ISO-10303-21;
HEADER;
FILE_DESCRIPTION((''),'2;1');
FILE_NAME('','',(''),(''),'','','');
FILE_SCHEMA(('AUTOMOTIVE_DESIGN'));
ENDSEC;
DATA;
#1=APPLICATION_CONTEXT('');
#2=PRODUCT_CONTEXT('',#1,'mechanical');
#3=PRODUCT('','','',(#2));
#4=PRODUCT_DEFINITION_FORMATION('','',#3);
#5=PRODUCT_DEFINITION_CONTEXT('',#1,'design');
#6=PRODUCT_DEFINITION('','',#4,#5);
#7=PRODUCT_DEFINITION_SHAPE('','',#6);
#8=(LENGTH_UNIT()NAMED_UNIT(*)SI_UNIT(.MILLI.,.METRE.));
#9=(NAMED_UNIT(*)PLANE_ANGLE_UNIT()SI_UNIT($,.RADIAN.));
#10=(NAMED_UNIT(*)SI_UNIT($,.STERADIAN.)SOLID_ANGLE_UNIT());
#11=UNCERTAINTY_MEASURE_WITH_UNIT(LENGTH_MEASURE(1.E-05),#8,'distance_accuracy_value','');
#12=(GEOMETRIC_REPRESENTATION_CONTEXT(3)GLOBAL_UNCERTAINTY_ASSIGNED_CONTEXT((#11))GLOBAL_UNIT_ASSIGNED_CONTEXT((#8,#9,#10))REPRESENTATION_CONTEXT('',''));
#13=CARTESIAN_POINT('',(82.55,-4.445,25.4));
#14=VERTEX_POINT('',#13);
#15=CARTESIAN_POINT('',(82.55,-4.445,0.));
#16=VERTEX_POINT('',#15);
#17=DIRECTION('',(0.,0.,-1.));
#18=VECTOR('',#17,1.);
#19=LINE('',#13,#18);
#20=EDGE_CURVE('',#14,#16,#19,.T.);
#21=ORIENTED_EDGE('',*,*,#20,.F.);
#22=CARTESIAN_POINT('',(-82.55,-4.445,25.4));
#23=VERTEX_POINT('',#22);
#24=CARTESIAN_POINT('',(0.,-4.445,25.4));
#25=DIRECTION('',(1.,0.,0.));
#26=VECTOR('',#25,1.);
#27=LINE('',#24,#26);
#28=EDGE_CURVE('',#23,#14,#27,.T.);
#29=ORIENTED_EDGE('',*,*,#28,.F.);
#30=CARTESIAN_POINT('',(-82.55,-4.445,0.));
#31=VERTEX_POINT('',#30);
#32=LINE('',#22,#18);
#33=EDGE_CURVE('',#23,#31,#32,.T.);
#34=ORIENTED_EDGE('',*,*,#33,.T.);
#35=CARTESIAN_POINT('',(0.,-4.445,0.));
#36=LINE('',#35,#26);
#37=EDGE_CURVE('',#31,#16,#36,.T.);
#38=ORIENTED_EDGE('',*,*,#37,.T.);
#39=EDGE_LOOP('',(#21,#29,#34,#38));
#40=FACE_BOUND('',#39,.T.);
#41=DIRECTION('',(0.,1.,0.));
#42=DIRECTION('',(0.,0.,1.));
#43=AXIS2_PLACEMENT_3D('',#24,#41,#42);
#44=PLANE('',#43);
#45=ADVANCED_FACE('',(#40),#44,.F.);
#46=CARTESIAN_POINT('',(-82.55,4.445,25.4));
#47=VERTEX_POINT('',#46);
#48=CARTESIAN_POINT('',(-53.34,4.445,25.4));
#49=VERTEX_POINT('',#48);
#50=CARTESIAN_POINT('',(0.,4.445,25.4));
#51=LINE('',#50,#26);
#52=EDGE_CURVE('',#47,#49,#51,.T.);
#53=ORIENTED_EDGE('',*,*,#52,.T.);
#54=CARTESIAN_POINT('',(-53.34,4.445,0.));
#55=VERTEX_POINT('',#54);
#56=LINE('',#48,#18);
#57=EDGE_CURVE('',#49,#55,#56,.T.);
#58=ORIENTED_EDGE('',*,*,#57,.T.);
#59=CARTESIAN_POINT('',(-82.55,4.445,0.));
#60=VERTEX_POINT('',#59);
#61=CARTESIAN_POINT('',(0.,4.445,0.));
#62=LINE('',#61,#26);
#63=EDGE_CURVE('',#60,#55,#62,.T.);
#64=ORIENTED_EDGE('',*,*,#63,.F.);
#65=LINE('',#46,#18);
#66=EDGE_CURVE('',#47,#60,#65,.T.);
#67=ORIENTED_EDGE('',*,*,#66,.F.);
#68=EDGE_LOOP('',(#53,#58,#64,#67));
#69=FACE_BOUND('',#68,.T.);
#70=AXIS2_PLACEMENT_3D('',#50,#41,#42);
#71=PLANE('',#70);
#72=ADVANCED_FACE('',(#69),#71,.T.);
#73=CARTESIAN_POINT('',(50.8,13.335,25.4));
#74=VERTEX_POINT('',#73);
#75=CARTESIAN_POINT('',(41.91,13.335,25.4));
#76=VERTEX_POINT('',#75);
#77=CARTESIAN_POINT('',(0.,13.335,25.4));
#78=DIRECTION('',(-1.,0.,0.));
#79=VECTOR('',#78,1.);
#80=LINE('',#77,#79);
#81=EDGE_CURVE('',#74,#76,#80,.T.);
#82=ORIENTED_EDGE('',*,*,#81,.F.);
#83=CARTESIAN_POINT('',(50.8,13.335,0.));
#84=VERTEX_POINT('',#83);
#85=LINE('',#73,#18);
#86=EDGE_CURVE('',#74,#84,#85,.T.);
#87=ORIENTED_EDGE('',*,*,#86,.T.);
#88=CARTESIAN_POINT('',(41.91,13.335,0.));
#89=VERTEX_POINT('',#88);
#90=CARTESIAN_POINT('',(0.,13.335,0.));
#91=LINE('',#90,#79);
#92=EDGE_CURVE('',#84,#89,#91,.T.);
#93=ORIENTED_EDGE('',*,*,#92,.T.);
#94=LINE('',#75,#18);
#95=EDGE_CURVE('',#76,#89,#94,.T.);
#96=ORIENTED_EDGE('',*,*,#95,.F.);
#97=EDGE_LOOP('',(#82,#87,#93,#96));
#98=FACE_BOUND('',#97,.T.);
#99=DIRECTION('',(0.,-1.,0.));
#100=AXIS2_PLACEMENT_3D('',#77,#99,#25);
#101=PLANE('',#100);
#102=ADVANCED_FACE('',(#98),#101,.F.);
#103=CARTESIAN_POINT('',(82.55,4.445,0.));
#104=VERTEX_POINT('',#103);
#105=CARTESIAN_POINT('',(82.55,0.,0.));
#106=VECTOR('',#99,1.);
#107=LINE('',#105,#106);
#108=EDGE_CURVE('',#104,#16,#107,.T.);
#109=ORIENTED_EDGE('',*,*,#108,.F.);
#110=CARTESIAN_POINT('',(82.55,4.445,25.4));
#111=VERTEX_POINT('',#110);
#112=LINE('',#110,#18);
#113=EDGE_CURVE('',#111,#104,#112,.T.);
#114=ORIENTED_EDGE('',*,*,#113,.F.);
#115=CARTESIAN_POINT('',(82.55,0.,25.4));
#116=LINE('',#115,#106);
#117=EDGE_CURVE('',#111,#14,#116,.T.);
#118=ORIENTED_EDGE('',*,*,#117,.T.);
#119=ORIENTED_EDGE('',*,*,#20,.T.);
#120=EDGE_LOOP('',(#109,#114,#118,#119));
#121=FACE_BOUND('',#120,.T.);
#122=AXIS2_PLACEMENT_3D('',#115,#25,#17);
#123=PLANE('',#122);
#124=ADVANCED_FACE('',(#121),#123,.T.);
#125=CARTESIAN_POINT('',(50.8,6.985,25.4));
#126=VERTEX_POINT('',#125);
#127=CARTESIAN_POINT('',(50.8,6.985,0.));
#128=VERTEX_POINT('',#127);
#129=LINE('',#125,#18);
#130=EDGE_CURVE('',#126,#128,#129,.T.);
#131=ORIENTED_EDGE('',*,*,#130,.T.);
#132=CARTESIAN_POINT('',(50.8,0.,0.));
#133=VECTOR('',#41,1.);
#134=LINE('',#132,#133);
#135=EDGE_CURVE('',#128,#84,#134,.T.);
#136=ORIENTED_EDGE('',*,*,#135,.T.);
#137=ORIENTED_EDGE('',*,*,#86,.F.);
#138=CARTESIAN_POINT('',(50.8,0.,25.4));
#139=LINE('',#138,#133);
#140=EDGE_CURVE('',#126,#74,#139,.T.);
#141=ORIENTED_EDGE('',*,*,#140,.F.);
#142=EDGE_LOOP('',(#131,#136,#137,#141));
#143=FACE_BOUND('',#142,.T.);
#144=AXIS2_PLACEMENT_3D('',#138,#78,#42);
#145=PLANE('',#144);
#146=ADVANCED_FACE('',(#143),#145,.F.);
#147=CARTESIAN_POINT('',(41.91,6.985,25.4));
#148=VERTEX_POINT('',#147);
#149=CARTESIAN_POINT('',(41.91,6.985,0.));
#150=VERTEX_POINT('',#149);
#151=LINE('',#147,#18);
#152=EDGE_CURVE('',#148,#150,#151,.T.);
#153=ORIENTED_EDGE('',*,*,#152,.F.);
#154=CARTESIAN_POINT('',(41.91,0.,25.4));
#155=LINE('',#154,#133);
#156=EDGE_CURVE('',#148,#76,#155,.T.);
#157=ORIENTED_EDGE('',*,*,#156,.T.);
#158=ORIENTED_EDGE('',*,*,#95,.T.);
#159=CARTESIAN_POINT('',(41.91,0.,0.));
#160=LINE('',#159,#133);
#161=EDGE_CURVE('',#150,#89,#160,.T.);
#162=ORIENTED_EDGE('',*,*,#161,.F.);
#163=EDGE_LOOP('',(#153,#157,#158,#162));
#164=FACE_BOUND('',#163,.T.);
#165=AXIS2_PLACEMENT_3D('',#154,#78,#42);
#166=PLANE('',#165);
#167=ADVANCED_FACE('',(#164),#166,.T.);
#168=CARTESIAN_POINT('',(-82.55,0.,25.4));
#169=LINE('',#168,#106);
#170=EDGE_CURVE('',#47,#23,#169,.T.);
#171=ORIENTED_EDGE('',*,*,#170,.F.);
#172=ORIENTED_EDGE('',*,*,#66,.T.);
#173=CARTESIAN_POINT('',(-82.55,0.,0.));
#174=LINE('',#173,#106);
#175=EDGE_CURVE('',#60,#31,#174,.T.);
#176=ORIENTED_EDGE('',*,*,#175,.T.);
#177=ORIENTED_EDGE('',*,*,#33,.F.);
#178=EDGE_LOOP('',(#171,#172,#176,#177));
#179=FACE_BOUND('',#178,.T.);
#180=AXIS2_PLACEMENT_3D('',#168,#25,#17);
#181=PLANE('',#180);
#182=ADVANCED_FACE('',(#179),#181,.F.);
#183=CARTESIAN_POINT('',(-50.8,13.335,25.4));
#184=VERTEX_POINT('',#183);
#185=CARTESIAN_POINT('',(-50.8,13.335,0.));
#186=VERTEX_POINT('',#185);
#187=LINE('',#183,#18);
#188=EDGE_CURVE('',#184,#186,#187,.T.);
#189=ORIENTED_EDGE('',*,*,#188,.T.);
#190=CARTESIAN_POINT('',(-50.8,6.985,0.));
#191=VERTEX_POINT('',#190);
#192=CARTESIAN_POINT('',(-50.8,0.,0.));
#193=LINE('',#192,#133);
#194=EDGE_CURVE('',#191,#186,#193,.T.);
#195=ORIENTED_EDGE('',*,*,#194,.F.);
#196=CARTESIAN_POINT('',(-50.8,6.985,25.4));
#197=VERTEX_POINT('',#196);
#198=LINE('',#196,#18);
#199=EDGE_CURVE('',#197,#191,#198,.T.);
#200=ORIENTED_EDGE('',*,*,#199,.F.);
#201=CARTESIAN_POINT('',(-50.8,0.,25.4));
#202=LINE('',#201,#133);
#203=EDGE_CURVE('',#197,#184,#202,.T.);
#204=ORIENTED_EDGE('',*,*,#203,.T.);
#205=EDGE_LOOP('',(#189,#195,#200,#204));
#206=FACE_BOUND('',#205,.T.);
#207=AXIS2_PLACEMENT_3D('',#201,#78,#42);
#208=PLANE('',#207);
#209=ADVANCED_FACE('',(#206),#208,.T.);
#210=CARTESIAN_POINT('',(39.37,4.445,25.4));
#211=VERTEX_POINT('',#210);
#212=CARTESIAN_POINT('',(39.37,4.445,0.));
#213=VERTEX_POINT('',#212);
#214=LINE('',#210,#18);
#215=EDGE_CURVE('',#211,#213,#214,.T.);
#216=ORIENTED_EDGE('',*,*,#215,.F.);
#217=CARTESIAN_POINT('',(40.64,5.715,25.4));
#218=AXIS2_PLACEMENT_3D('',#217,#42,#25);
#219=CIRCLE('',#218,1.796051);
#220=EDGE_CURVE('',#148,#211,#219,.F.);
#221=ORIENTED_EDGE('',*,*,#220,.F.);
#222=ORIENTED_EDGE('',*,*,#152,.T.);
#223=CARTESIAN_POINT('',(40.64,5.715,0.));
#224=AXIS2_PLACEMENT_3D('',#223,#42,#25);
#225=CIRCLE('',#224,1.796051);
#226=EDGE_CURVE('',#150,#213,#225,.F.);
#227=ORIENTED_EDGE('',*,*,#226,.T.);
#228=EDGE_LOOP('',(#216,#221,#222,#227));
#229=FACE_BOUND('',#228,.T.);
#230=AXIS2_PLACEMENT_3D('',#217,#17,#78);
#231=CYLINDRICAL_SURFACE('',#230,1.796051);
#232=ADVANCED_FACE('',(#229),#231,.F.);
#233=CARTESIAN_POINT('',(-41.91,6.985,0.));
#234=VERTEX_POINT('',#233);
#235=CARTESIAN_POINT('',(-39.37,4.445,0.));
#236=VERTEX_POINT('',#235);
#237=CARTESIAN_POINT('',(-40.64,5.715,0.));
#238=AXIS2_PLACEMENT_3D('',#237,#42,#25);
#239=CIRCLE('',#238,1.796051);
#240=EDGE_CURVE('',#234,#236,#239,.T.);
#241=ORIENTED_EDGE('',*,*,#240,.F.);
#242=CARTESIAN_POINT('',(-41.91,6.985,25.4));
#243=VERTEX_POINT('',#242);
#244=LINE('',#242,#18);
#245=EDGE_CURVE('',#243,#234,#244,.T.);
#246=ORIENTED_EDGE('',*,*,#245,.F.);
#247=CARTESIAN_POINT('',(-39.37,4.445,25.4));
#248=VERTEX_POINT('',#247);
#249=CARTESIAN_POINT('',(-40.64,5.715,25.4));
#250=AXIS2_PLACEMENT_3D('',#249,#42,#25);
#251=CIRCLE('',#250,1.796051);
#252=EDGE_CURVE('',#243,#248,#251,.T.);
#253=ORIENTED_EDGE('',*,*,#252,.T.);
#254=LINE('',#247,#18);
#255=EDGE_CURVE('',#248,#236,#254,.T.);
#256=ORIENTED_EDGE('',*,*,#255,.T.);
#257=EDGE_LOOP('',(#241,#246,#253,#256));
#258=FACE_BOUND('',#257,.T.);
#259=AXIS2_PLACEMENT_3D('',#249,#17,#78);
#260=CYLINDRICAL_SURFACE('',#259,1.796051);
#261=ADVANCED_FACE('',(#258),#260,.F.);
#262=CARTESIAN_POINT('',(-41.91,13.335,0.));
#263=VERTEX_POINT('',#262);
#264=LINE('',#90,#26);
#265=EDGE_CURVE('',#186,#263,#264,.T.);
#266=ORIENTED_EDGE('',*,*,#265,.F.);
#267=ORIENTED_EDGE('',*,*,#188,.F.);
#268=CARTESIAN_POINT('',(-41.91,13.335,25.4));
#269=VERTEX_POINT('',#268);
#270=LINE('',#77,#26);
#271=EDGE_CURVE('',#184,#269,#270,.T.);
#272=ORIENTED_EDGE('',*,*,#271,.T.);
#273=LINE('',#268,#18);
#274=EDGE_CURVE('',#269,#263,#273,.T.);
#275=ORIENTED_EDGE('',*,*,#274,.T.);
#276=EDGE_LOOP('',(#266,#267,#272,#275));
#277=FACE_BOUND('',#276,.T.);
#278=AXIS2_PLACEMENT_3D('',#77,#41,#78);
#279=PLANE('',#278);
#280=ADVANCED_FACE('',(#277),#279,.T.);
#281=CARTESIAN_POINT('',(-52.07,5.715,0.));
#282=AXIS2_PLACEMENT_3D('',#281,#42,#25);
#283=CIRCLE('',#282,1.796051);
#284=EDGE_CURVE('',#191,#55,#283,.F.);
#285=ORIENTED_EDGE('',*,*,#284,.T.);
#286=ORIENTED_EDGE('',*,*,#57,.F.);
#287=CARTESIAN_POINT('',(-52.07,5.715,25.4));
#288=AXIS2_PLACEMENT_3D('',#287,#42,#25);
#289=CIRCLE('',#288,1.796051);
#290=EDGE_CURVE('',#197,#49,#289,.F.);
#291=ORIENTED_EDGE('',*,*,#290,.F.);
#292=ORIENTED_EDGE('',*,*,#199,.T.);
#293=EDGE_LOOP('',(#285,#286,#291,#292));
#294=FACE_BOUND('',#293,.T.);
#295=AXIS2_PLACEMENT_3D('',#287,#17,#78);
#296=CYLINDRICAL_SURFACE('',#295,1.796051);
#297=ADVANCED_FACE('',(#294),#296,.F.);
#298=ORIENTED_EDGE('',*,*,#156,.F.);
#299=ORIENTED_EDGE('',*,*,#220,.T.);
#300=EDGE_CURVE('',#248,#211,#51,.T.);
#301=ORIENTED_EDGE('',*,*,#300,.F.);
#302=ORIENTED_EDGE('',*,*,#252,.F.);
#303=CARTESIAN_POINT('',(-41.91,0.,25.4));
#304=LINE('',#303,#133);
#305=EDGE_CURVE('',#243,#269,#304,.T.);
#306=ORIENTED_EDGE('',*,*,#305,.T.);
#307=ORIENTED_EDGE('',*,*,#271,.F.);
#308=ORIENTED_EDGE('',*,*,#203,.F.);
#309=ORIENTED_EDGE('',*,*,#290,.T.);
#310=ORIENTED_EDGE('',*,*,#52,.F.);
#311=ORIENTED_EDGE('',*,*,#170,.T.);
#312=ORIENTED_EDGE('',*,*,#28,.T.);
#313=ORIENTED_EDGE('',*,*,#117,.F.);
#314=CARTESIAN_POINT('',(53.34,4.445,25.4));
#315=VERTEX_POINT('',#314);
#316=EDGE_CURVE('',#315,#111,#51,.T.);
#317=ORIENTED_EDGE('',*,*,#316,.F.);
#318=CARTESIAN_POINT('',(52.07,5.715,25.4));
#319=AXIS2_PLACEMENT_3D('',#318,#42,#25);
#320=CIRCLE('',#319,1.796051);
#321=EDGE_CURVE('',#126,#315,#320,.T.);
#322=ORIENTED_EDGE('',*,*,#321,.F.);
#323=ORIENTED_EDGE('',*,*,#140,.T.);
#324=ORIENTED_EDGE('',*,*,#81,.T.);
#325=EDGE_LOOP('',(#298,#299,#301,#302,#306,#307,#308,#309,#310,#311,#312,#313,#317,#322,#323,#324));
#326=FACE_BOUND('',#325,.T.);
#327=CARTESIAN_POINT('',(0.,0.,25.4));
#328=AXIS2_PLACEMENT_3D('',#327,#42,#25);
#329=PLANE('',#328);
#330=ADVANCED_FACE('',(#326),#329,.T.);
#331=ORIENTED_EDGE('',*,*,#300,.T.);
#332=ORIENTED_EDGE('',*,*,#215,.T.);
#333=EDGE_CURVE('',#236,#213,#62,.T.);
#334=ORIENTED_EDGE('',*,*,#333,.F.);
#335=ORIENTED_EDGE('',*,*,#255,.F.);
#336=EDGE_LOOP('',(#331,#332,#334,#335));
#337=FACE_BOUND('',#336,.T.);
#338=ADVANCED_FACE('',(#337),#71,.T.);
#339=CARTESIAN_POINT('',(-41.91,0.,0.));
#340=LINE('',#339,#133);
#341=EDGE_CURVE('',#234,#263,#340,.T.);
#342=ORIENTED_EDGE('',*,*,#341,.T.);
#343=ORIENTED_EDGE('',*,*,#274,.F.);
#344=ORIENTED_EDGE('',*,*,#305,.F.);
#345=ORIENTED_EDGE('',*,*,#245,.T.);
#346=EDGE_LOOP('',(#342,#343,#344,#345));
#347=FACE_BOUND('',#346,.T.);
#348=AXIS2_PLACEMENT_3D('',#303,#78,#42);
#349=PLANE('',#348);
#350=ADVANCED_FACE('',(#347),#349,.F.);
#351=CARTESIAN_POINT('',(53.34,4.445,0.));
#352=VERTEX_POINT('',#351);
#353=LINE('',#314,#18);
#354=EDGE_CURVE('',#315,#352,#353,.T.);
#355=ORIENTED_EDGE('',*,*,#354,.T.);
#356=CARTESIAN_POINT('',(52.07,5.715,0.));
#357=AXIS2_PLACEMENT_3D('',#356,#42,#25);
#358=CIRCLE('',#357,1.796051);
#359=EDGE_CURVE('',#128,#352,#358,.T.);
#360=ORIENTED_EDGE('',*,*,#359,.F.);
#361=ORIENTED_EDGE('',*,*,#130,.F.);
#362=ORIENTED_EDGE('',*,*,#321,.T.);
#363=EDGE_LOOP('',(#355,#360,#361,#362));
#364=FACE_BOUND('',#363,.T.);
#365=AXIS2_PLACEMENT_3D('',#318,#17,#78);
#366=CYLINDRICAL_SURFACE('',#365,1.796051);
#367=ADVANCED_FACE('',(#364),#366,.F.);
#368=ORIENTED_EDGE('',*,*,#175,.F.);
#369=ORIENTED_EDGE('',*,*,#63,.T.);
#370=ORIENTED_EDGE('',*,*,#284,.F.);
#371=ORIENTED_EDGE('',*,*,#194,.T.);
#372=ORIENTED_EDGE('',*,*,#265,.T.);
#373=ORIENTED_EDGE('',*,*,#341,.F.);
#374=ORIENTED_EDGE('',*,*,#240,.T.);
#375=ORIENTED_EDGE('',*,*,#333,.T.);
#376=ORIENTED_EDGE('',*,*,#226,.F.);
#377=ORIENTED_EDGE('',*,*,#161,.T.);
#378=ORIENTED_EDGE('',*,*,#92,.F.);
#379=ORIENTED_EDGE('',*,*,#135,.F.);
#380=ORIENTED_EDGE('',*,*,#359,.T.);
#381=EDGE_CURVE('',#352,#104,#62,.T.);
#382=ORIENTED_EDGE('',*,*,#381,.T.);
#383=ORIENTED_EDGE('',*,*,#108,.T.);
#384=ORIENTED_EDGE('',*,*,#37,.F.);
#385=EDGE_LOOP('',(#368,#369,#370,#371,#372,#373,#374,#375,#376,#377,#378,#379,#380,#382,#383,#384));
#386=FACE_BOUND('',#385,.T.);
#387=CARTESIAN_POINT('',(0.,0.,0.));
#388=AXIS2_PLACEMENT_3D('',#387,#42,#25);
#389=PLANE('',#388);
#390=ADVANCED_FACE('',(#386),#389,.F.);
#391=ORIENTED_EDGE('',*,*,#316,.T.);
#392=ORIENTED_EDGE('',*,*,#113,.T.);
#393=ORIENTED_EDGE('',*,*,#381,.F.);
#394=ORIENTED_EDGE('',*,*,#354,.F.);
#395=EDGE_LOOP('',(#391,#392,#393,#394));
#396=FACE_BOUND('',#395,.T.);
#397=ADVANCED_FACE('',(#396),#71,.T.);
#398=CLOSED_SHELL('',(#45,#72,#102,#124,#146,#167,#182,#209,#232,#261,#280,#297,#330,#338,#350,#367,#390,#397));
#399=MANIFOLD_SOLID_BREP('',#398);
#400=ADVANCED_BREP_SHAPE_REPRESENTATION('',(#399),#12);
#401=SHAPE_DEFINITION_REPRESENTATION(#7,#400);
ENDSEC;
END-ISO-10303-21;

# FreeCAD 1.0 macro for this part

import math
import FreeCAD as App
import Part
import Sketcher

V = App.Vector
Q = App.Units.Quantity

doc = App.newDocument("Part")
body = doc.addObject("PartDesign::Body", "Body")

sketch1 = body.newObject("Sketcher::SketchObject", "Sketch")
sketch1.AttachmentSupport = (doc.getObject("XY_Plane"), [""])
sketch1.MapMode = "FlatFace"
sketch1.addGeometry([
    Part.LineSegment(V(-53.3, 4.4, 0), V(-82.5, 4.4, 0)),
    Part.LineSegment(V(-82.5, 4.4, 0), V(-82.5, -4.4, 0)),
    Part.LineSegment(V(-82.5, -4.4, 0), V(82.5, -4.4, 0)),
    Part.LineSegment(V(82.5, -4.4, 0), V(82.5, 4.4, 0)),
    Part.LineSegment(V(82.5, 4.4, 0), V(53.3, 4.4, 0)),
    Part.ArcOfCircle(Part.Circle(V(52.1, 5.7, 0), V(0, 0, 1), 1.8), math.radians(135), math.radians(315)),
    Part.LineSegment(V(50.8, 7, 0), V(50.8, 13.3, 0)),
    Part.LineSegment(V(50.8, 13.3, 0), V(41.9, 13.3, 0)),
    Part.LineSegment(V(41.9, 13.3, 0), V(41.9, 7, 0)),
    Part.ArcOfCircle(Part.Circle(V(40.6, 5.7, 0), V(0, 0, 1), 1.8), math.radians(-135), math.radians(45)),
    Part.LineSegment(V(39.4, 4.4, 0), V(-39.4, 4.4, 0)),
    Part.ArcOfCircle(Part.Circle(V(-40.6, 5.7, 0), V(0, 0, 1), 1.8), math.radians(135), math.radians(315)),
    Part.LineSegment(V(-41.9, 7, 0), V(-41.9, 13.3, 0)),
    Part.LineSegment(V(-41.9, 13.3, 0), V(-50.8, 13.3, 0)),
    Part.LineSegment(V(-50.8, 13.3, 0), V(-50.8, 7, 0)),
    Part.ArcOfCircle(Part.Circle(V(-52.1, 5.7, 0), V(0, 0, 1), 1.8), math.radians(-135), math.radians(45)),
], False)
sketch1.addConstraint([
    Sketcher.Constraint("Coincident", 0, 2, 1, 1),
    Sketcher.Constraint("Coincident", 1, 2, 2, 1),
    Sketcher.Constraint("Coincident", 2, 2, 3, 1),
    Sketcher.Constraint("Coincident", 3, 2, 4, 1),
    Sketcher.Constraint("Coincident", 4, 2, 5, 2),
    Sketcher.Constraint("Coincident", 5, 1, 6, 1),
    Sketcher.Constraint("Coincident", 6, 2, 7, 1),
    Sketcher.Constraint("Coincident", 7, 2, 8, 1),
    Sketcher.Constraint("Coincident", 8, 2, 9, 2),
    Sketcher.Constraint("Coincident", 9, 1, 10, 1),
    Sketcher.Constraint("Coincident", 10, 2, 11, 2),
    Sketcher.Constraint("Coincident", 11, 1, 12, 1),
    Sketcher.Constraint("Coincident", 12, 2, 13, 1),
    Sketcher.Constraint("Coincident", 13, 2, 14, 1),
    Sketcher.Constraint("Coincident", 14, 2, 15, 2),
    Sketcher.Constraint("Coincident", 15, 1, 0, 1),
    Sketcher.Constraint("Horizontal", 0),
    Sketcher.Constraint("Vertical", 1),
    Sketcher.Constraint("Horizontal", 2),
    Sketcher.Constraint("Vertical", 3),
    Sketcher.Constraint("Horizontal", 4),
    Sketcher.Constraint("Vertical", 6),
    Sketcher.Constraint("Horizontal", 7),
    Sketcher.Constraint("Vertical", 8),
    Sketcher.Constraint("Horizontal", 10),
    Sketcher.Constraint("Vertical", 12),
    Sketcher.Constraint("Horizontal", 13),
    Sketcher.Constraint("Vertical", 14),
    Sketcher.Constraint("Equal", 5, 9),
    Sketcher.Constraint("Equal", 9, 11),
    Sketcher.Constraint("Equal", 11, 15),
    Sketcher.Constraint("Symmetric", 0, 2, 2, 2, -1, 1),
    Sketcher.Constraint("Symmetric", 9, 3, 11, 3, -2),
    Sketcher.Constraint("Symmetric", 5, 3, 15, 3, -2),
    Sketcher.Constraint("Symmetric", 7, 2, 12, 2, -2),
    Sketcher.Constraint("Horizontal", 5, 3, 9, 3),
    Sketcher.Constraint("Horizontal", 0, 2, 3, 2),
    Sketcher.Constraint("Horizontal", 5, 1, 8, 2),
    Sketcher.Constraint("Horizontal", 4, 2, 9, 1),
    Sketcher.Constraint("Horizontal", 11, 1, 14, 2),
    Sketcher.Constraint("Equal", 13, 1),
    Sketcher.Constraint("DistanceX", 2, 1, 2, 2, Q("6.5 in")),
    Sketcher.Constraint("DistanceX", 10, 2, 10, 1, Q("3.1 in")),
    Sketcher.Constraint("DistanceX", -1, 1, 5, 1, Q("2 in")),
    Sketcher.Constraint("DistanceX", 0, 2, 0, 1, Q("1.15 in")),
    Sketcher.Constraint("DistanceY", 6, 1, 6, 2, Q("0.25 in")),
    Sketcher.Constraint("DistanceX", -1, 1, 9, 3, Q("1.6 in")),
    Sketcher.Constraint("DistanceY", 1, 2, 15, 3, Q("0.4 in")),
])
pad1 = body.newObject("PartDesign::Pad", "Pad")
pad1.Profile = sketch1
pad1.Length = Q("1 in")

doc.recompute()
